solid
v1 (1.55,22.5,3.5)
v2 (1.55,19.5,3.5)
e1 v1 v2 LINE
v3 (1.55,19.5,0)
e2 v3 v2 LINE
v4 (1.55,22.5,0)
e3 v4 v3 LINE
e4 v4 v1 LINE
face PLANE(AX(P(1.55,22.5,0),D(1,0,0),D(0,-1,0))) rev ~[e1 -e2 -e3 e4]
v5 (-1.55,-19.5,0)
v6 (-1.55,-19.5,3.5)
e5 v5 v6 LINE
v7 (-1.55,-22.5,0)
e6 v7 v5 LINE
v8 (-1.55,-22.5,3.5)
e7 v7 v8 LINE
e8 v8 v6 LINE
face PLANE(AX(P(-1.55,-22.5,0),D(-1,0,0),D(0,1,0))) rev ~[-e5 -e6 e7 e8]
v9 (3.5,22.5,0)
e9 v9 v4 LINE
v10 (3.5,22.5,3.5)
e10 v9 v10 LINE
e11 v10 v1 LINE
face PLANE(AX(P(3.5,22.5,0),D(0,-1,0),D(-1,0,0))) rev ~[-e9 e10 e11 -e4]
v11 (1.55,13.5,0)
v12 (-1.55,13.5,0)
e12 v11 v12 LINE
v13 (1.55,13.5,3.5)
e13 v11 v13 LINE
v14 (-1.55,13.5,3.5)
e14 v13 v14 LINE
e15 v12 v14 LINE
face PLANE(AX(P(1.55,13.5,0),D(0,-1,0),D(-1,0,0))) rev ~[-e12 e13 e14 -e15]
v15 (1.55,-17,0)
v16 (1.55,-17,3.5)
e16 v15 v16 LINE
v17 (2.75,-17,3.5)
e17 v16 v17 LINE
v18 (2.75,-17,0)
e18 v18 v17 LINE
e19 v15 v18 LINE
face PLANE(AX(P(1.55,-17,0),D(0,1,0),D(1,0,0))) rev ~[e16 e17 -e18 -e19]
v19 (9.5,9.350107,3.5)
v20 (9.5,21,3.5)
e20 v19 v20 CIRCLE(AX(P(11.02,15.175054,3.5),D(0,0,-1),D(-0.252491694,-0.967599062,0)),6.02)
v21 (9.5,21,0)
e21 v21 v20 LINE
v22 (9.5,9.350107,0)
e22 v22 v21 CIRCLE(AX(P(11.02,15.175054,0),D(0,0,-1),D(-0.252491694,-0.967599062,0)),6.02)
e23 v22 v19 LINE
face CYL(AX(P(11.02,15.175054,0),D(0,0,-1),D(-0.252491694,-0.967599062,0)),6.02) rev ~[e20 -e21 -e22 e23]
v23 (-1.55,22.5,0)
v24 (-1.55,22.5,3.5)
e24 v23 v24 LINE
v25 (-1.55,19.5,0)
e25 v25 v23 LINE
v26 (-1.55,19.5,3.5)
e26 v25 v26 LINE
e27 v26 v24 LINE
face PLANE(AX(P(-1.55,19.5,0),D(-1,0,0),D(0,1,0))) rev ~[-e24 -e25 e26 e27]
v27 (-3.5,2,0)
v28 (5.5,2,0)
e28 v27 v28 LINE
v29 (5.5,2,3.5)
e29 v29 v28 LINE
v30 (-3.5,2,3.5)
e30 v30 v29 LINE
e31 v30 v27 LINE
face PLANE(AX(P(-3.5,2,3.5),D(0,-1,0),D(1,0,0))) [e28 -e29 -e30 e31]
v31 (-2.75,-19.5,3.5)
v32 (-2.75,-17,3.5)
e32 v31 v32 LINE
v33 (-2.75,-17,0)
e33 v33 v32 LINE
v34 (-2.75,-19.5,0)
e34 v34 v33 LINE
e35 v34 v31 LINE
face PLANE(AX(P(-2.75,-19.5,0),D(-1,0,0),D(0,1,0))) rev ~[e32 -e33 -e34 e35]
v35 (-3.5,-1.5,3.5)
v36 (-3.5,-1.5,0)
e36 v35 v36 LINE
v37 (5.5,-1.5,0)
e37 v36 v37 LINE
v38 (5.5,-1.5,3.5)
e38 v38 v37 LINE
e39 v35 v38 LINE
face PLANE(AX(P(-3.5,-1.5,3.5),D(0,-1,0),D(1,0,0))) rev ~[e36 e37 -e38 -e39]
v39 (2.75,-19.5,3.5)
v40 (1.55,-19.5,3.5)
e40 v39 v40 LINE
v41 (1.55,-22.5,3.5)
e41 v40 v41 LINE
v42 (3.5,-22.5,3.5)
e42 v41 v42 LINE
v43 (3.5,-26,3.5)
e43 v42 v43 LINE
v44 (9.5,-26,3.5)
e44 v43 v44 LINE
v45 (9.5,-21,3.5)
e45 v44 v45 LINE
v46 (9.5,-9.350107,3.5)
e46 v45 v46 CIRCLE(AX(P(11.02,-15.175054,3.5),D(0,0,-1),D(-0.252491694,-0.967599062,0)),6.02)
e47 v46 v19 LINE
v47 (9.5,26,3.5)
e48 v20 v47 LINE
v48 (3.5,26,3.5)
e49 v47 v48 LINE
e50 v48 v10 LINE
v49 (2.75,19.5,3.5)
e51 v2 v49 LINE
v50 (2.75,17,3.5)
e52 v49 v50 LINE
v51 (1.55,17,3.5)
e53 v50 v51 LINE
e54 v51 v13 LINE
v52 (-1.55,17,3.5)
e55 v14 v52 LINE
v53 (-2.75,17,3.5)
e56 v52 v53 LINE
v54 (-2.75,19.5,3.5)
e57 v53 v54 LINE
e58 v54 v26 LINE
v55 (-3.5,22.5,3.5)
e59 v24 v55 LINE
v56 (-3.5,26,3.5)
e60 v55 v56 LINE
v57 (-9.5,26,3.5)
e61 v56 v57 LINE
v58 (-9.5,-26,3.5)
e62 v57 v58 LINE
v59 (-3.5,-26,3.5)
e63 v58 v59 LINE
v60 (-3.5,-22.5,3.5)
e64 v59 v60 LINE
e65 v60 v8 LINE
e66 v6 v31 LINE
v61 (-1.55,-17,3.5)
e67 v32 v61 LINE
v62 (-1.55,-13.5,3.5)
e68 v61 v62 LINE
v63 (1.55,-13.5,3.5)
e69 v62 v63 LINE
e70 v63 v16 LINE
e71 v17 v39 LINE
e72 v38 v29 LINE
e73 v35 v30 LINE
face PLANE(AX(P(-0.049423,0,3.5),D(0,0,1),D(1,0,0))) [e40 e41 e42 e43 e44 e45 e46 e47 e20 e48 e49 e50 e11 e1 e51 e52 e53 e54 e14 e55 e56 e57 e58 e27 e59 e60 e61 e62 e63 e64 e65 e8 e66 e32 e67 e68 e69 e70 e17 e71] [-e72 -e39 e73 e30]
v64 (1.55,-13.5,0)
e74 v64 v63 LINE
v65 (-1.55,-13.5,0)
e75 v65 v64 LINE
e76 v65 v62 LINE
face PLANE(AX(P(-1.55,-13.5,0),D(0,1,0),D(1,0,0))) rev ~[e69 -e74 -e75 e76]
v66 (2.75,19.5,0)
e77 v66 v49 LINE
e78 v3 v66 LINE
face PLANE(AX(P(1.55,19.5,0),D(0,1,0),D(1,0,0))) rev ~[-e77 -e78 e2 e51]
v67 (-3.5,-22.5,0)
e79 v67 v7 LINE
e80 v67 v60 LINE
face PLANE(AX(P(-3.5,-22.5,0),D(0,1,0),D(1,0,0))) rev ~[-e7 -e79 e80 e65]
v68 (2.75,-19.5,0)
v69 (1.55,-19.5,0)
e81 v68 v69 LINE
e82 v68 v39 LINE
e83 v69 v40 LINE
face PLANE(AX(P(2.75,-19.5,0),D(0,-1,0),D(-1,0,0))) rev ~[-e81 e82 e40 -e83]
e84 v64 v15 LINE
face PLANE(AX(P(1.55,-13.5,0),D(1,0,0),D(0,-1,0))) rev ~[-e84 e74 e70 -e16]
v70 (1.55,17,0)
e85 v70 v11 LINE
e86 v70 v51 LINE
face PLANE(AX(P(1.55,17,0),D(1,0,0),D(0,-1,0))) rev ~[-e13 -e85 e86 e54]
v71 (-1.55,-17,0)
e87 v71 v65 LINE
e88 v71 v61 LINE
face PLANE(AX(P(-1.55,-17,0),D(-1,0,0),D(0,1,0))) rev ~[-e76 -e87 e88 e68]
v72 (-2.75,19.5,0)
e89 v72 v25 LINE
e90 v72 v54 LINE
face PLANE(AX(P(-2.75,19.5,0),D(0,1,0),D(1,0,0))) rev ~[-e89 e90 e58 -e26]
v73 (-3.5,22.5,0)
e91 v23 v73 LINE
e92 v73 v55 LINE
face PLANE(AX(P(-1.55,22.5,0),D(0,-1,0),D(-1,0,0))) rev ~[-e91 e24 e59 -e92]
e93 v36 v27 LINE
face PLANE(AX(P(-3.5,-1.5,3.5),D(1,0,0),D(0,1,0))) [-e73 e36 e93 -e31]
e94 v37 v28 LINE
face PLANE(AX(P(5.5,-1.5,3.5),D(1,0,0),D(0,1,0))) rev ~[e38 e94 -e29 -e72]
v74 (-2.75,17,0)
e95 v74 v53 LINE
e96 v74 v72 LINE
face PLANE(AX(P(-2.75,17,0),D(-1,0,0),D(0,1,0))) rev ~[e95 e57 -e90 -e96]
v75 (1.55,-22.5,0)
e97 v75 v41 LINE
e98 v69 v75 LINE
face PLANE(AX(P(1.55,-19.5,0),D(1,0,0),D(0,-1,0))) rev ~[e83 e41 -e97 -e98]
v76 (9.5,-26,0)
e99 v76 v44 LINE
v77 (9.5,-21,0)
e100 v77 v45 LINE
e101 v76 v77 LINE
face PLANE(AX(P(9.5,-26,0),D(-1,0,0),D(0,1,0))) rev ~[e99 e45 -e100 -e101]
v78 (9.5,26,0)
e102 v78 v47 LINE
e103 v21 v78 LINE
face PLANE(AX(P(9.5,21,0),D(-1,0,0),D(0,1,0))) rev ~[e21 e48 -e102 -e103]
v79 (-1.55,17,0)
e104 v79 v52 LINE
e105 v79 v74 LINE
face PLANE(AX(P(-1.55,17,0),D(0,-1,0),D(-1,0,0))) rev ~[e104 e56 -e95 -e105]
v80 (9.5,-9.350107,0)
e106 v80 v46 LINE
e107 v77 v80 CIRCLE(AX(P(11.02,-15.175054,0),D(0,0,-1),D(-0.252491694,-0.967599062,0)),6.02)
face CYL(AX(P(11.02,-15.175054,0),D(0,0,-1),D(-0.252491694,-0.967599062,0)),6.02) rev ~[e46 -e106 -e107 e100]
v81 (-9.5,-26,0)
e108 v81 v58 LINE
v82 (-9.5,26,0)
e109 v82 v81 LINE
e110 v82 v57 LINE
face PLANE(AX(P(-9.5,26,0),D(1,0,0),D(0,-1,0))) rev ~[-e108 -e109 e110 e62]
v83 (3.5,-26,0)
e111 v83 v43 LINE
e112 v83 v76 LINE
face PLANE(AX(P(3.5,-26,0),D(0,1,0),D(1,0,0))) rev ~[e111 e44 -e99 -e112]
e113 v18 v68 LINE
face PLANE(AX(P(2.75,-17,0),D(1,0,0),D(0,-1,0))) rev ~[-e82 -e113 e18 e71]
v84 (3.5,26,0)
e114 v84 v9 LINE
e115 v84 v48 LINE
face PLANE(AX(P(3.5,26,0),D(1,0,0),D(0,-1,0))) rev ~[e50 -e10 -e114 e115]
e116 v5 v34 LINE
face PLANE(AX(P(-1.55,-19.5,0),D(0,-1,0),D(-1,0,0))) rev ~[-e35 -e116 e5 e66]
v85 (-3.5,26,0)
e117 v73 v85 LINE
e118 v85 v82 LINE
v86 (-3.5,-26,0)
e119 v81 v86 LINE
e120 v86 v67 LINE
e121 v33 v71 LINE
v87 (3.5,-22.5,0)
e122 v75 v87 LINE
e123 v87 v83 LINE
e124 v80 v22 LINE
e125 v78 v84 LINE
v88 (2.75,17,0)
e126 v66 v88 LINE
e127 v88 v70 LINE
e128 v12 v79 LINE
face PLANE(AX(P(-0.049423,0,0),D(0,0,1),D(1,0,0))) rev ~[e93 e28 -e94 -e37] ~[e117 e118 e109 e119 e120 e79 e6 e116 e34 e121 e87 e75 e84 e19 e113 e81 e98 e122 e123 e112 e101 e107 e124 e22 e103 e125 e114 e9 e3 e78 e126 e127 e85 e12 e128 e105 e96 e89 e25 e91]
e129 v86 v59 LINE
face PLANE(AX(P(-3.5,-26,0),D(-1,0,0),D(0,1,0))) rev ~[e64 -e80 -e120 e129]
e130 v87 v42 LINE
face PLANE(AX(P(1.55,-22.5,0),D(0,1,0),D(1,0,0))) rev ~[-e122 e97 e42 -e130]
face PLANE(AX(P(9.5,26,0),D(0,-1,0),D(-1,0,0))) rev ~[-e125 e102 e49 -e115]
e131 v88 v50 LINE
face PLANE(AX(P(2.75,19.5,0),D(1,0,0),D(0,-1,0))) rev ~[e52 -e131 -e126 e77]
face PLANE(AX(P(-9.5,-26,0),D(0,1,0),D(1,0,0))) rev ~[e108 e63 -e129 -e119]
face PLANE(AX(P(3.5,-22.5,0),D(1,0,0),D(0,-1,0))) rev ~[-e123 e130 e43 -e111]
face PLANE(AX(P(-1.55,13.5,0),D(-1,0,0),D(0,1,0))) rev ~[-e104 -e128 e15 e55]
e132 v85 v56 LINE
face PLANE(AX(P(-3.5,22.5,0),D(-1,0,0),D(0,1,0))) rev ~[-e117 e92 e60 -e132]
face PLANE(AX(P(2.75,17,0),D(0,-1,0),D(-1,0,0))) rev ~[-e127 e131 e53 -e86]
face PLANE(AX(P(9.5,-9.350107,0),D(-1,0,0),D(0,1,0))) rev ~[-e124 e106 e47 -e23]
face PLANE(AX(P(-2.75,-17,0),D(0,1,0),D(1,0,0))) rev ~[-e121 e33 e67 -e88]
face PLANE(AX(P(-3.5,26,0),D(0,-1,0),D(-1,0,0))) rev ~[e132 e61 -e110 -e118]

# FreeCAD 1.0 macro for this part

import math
import FreeCAD as App
import Part
import Sketcher

V = App.Vector
Q = App.Units.Quantity


def add_polygon(sketch, points):
    """Adds a closed chain of lines whose ends are joined by coincident constraints."""
    first, n = sketch.GeometryCount, len(points)
    for a, b in zip(points, points[1:] + points[:1]):
        sketch.addGeometry(Part.LineSegment(App.Vector(*a, 0), App.Vector(*b, 0)), False)
    for i in range(n):
        sketch.addConstraint(Sketcher.Constraint("Coincident", first + i, 2, first + (i + 1) % n, 1))

doc = App.newDocument("Part")
body = doc.addObject("PartDesign::Body", "Body")

sketch1 = body.newObject("Sketcher::SketchObject", "Sketch")
sketch1.AttachmentSupport = (doc.getObject("XY_Plane"), [""])
sketch1.MapMode = "FlatFace"
sketch1.addGeometry(Part.LineSegment(V(3.5, 26, 0), V(3.5, 22.5, 0)), False)
sketch1.addGeometry(Part.LineSegment(V(3.5, 22.5, 0), V(1.6, 22.5, 0)), False)
sketch1.addGeometry(Part.LineSegment(V(1.6, 22.5, 0), V(1.6, 19.5, 0)), False)
sketch1.addGeometry(Part.LineSegment(V(1.6, 19.5, 0), V(2.8, 19.5, 0)), False)
sketch1.addGeometry(Part.LineSegment(V(2.8, 19.5, 0), V(2.8, 17, 0)), False)
sketch1.addGeometry(Part.LineSegment(V(2.8, 17, 0), V(1.6, 17, 0)), False)
sketch1.addGeometry(Part.LineSegment(V(1.6, 17, 0), V(1.6, 13.5, 0)), False)
sketch1.addGeometry(Part.LineSegment(V(1.6, 13.5, 0), V(-1.6, 13.5, 0)), False)
sketch1.addGeometry(Part.LineSegment(V(-1.6, 13.5, 0), V(-1.6, 17, 0)), False)
sketch1.addGeometry(Part.LineSegment(V(-1.6, 17, 0), V(-2.8, 17, 0)), False)
sketch1.addGeometry(Part.LineSegment(V(-2.8, 17, 0), V(-2.8, 19.5, 0)), False)
sketch1.addGeometry(Part.LineSegment(V(-2.8, 19.5, 0), V(-1.6, 19.5, 0)), False)
sketch1.addGeometry(Part.LineSegment(V(-1.6, 19.5, 0), V(-1.6, 22.5, 0)), False)
sketch1.addGeometry(Part.LineSegment(V(-1.6, 22.5, 0), V(-3.5, 22.5, 0)), False)
sketch1.addGeometry(Part.LineSegment(V(-3.5, 22.5, 0), V(-3.5, 26, 0)), False)
sketch1.addGeometry(Part.LineSegment(V(-3.5, 26, 0), V(-9.5, 26, 0)), False)
sketch1.addGeometry(Part.LineSegment(V(-9.5, 26, 0), V(-9.5, -26, 0)), False)
sketch1.addGeometry(Part.LineSegment(V(-9.5, -26, 0), V(-3.5, -26, 0)), False)
sketch1.addGeometry(Part.LineSegment(V(-3.5, -26, 0), V(-3.5, -22.5, 0)), False)
sketch1.addGeometry(Part.LineSegment(V(-3.5, -22.5, 0), V(-1.6, -22.5, 0)), False)
sketch1.addGeometry(Part.LineSegment(V(-1.6, -22.5, 0), V(-1.6, -19.5, 0)), False)
sketch1.addGeometry(Part.LineSegment(V(-1.6, -19.5, 0), V(-2.8, -19.5, 0)), False)
sketch1.addGeometry(Part.LineSegment(V(-2.8, -19.5, 0), V(-2.8, -17, 0)), False)
sketch1.addGeometry(Part.LineSegment(V(-2.8, -17, 0), V(-1.6, -17, 0)), False)
sketch1.addGeometry(Part.LineSegment(V(-1.6, -17, 0), V(-1.6, -13.5, 0)), False)
sketch1.addGeometry(Part.LineSegment(V(-1.6, -13.5, 0), V(1.6, -13.5, 0)), False)
sketch1.addGeometry(Part.LineSegment(V(1.6, -13.5, 0), V(1.6, -17, 0)), False)
sketch1.addGeometry(Part.LineSegment(V(1.6, -17, 0), V(2.8, -17, 0)), False)
sketch1.addGeometry(Part.LineSegment(V(2.8, -17, 0), V(2.8, -19.5, 0)), False)
sketch1.addGeometry(Part.LineSegment(V(2.8, -19.5, 0), V(1.6, -19.5, 0)), False)
sketch1.addGeometry(Part.LineSegment(V(1.6, -19.5, 0), V(1.6, -22.5, 0)), False)
sketch1.addGeometry(Part.LineSegment(V(1.6, -22.5, 0), V(3.5, -22.5, 0)), False)
sketch1.addGeometry(Part.LineSegment(V(3.5, -22.5, 0), V(3.5, -26, 0)), False)
sketch1.addGeometry(Part.LineSegment(V(3.5, -26, 0), V(9.5, -26, 0)), False)
sketch1.addGeometry(Part.LineSegment(V(9.5, -26, 0), V(9.5, -21, 0)), False)
sketch1.addGeometry(Part.ArcOfCircle(Part.Circle(V(11, -15.2, 0), V(0, 0, 1), 6), math.radians(105), math.radians(255)), False)
sketch1.addGeometry(Part.LineSegment(V(9.5, -9.4, 0), V(9.5, 9.4, 0)), False)
sketch1.addGeometry(Part.ArcOfCircle(Part.Circle(V(11, 15.2, 0), V(0, 0, 1), 6), math.radians(105), math.radians(255)), False)
sketch1.addGeometry(Part.LineSegment(V(9.5, 21, 0), V(9.5, 26, 0)), False)
sketch1.addGeometry(Part.LineSegment(V(9.5, 26, 0), V(3.5, 26, 0)), False)
sketch1.addConstraint(Sketcher.Constraint("Coincident", 0, 2, 1, 1))
sketch1.addConstraint(Sketcher.Constraint("Coincident", 1, 2, 2, 1))
sketch1.addConstraint(Sketcher.Constraint("Coincident", 2, 2, 3, 1))
sketch1.addConstraint(Sketcher.Constraint("Coincident", 3, 2, 4, 1))
sketch1.addConstraint(Sketcher.Constraint("Coincident", 4, 2, 5, 1))
sketch1.addConstraint(Sketcher.Constraint("Coincident", 5, 2, 6, 1))
sketch1.addConstraint(Sketcher.Constraint("Coincident", 6, 2, 7, 1))
sketch1.addConstraint(Sketcher.Constraint("Coincident", 7, 2, 8, 1))
sketch1.addConstraint(Sketcher.Constraint("Coincident", 8, 2, 9, 1))
sketch1.addConstraint(Sketcher.Constraint("Coincident", 9, 2, 10, 1))
sketch1.addConstraint(Sketcher.Constraint("Coincident", 10, 2, 11, 1))
sketch1.addConstraint(Sketcher.Constraint("Coincident", 11, 2, 12, 1))
sketch1.addConstraint(Sketcher.Constraint("Coincident", 12, 2, 13, 1))
sketch1.addConstraint(Sketcher.Constraint("Coincident", 13, 2, 14, 1))
sketch1.addConstraint(Sketcher.Constraint("Coincident", 14, 2, 15, 1))
sketch1.addConstraint(Sketcher.Constraint("Coincident", 15, 2, 16, 1))
sketch1.addConstraint(Sketcher.Constraint("Coincident", 16, 2, 17, 1))
sketch1.addConstraint(Sketcher.Constraint("Coincident", 17, 2, 18, 1))
sketch1.addConstraint(Sketcher.Constraint("Coincident", 18, 2, 19, 1))
sketch1.addConstraint(Sketcher.Constraint("Coincident", 19, 2, 20, 1))
sketch1.addConstraint(Sketcher.Constraint("Coincident", 20, 2, 21, 1))
sketch1.addConstraint(Sketcher.Constraint("Coincident", 21, 2, 22, 1))
sketch1.addConstraint(Sketcher.Constraint("Coincident", 22, 2, 23, 1))
sketch1.addConstraint(Sketcher.Constraint("Coincident", 23, 2, 24, 1))
sketch1.addConstraint(Sketcher.Constraint("Coincident", 24, 2, 25, 1))
sketch1.addConstraint(Sketcher.Constraint("Coincident", 25, 2, 26, 1))
sketch1.addConstraint(Sketcher.Constraint("Coincident", 26, 2, 27, 1))
sketch1.addConstraint(Sketcher.Constraint("Coincident", 27, 2, 28, 1))
sketch1.addConstraint(Sketcher.Constraint("Coincident", 28, 2, 29, 1))
sketch1.addConstraint(Sketcher.Constraint("Coincident", 29, 2, 30, 1))
sketch1.addConstraint(Sketcher.Constraint("Coincident", 30, 2, 31, 1))
sketch1.addConstraint(Sketcher.Constraint("Coincident", 31, 2, 32, 1))
sketch1.addConstraint(Sketcher.Constraint("Coincident", 32, 2, 33, 1))
sketch1.addConstraint(Sketcher.Constraint("Coincident", 33, 2, 34, 1))
sketch1.addConstraint(Sketcher.Constraint("Coincident", 34, 2, 35, 2))
sketch1.addConstraint(Sketcher.Constraint("Coincident", 35, 1, 36, 1))
sketch1.addConstraint(Sketcher.Constraint("Coincident", 36, 2, 37, 2))
sketch1.addConstraint(Sketcher.Constraint("Coincident", 37, 1, 38, 1))
sketch1.addConstraint(Sketcher.Constraint("Coincident", 38, 2, 39, 1))
sketch1.addConstraint(Sketcher.Constraint("Coincident", 39, 2, 0, 1))
sketch1.addConstraint(Sketcher.Constraint("Vertical", 0))
sketch1.addConstraint(Sketcher.Constraint("Horizontal", 1))
sketch1.addConstraint(Sketcher.Constraint("Vertical", 2))
sketch1.addConstraint(Sketcher.Constraint("Horizontal", 3))
sketch1.addConstraint(Sketcher.Constraint("Vertical", 4))
sketch1.addConstraint(Sketcher.Constraint("Horizontal", 5))
sketch1.addConstraint(Sketcher.Constraint("Vertical", 6))
sketch1.addConstraint(Sketcher.Constraint("Horizontal", 7))
sketch1.addConstraint(Sketcher.Constraint("Vertical", 8))
sketch1.addConstraint(Sketcher.Constraint("Horizontal", 9))
sketch1.addConstraint(Sketcher.Constraint("Vertical", 10))
sketch1.addConstraint(Sketcher.Constraint("Horizontal", 11))
sketch1.addConstraint(Sketcher.Constraint("Vertical", 12))
sketch1.addConstraint(Sketcher.Constraint("Horizontal", 13))
sketch1.addConstraint(Sketcher.Constraint("Vertical", 14))
sketch1.addConstraint(Sketcher.Constraint("Horizontal", 15))
sketch1.addConstraint(Sketcher.Constraint("Vertical", 16))
sketch1.addConstraint(Sketcher.Constraint("Horizontal", 17))
sketch1.addConstraint(Sketcher.Constraint("Vertical", 18))
sketch1.addConstraint(Sketcher.Constraint("Horizontal", 19))
sketch1.addConstraint(Sketcher.Constraint("Vertical", 20))
sketch1.addConstraint(Sketcher.Constraint("Horizontal", 21))
sketch1.addConstraint(Sketcher.Constraint("Vertical", 22))
sketch1.addConstraint(Sketcher.Constraint("Horizontal", 23))
sketch1.addConstraint(Sketcher.Constraint("Vertical", 24))
sketch1.addConstraint(Sketcher.Constraint("Horizontal", 25))
sketch1.addConstraint(Sketcher.Constraint("Vertical", 26))
sketch1.addConstraint(Sketcher.Constraint("Horizontal", 27))
sketch1.addConstraint(Sketcher.Constraint("Vertical", 28))
sketch1.addConstraint(Sketcher.Constraint("Horizontal", 29))
sketch1.addConstraint(Sketcher.Constraint("Vertical", 30))
sketch1.addConstraint(Sketcher.Constraint("Horizontal", 31))
sketch1.addConstraint(Sketcher.Constraint("Vertical", 32))
sketch1.addConstraint(Sketcher.Constraint("Horizontal", 33))
sketch1.addConstraint(Sketcher.Constraint("Vertical", 34))
sketch1.addConstraint(Sketcher.Constraint("Vertical", 36))
sketch1.addConstraint(Sketcher.Constraint("Vertical", 38))
sketch1.addConstraint(Sketcher.Constraint("Horizontal", 39))
sketch1.addConstraint(Sketcher.Constraint("Equal", 35, 37))
sketch1.addConstraint(Sketcher.Constraint("Symmetric", 0, 2, 18, 2, -1, 1))
sketch1.addConstraint(Sketcher.Constraint("Symmetric", 2, 2, 20, 2, -1, 1))
sketch1.addConstraint(Sketcher.Constraint("Symmetric", 4, 2, 22, 2, -1, 1))
sketch1.addConstraint(Sketcher.Constraint("Symmetric", 6, 2, 24, 2, -1, 1))
sketch1.addConstraint(Sketcher.Constraint("Symmetric", 8, 2, 26, 2, -1, 1))
sketch1.addConstraint(Sketcher.Constraint("Symmetric", 10, 2, 28, 2, -1, 1))
sketch1.addConstraint(Sketcher.Constraint("Symmetric", 12, 2, 30, 2, -1, 1))
sketch1.addConstraint(Sketcher.Constraint("Symmetric", 14, 2, 32, 2, -1, 1))
sketch1.addConstraint(Sketcher.Constraint("Symmetric", 16, 2, 38, 2, -1, 1))
sketch1.addConstraint(Sketcher.Constraint("Symmetric", 5, 2, 8, 2, -2))
sketch1.addConstraint(Sketcher.Constraint("Symmetric", 3, 2, 10, 2, -2))
sketch1.addConstraint(Sketcher.Constraint("Symmetric", 1, 2, 12, 2, -2))
sketch1.addConstraint(Sketcher.Constraint("Symmetric", 17, 2, 32, 2, -2))
sketch1.addConstraint(Sketcher.Constraint("Symmetric", 35, 3, 37, 3, -1))
sketch1.addConstraint(Sketcher.Constraint("Vertical", 2, 2, 5, 2))
sketch1.addConstraint(Sketcher.Constraint("Vertical", 34, 2, 35, 1))
sketch1.addConstraint(Sketcher.Constraint("Vertical", 36, 2, 37, 1))
sketch1.addConstraint(Sketcher.Constraint("Equal", 0, 6))
sketch1.addConstraint(Sketcher.Constraint("DistanceX", 15, 2, 15, 1, Q("6 mm")))
sketch1.addConstraint(Sketcher.Constraint("DistanceY", 2, 2, 2, 1, Q("3 mm")))
sketch1.addConstraint(Sketcher.Constraint("DistanceY", 16, 2, 16, 1, Q("52 mm")))
sketch1.addConstraint(Sketcher.Constraint("DistanceY", 34, 1, 34, 2, Q("5 mm")))
sketch1.addConstraint(Sketcher.Constraint("Radius", 35, Q("6.02 mm")))
sketch1.addConstraint(Sketcher.Constraint("DistanceX", 3, 1, 3, 2, Q("1.2 mm")))
sketch1.addConstraint(Sketcher.Constraint("DistanceX", 7, 2, 7, 1, Q("3.1 mm")))
sketch1.addConstraint(Sketcher.Constraint("DistanceY", 0, 2, 0, 1, Q("3.5 mm")))
sketch1.addConstraint(Sketcher.Constraint("DistanceY", 4, 2, 4, 1, Q("2.5 mm")))
sketch1.addConstraint(Sketcher.Constraint("DistanceX", 1, 2, 1, 1, Q("1.95 mm")))
sketch1.addConstraint(Sketcher.Constraint("DistanceX", -1, 1, 35, 3, Q("11.02 mm")))
pad1 = body.newObject("PartDesign::Pad", "Pad")
pad1.Profile = sketch1
pad1.Length = 3.5

sketch2 = body.newObject("Sketcher::SketchObject", "Sketch001")
sketch2.AttachmentSupport = (doc.getObject("XY_Plane"), [""])
sketch2.MapMode = "FlatFace"
sketch2.AttachmentOffset = App.Placement(V(0, 0, 3.5), App.Rotation())
add_polygon(sketch2, [(-3.5, 2), (-3.5, -1.5), (5.5, -1.5), (5.5, 2)])
sketch2.addConstraint(Sketcher.Constraint("Vertical", 0))
sketch2.addConstraint(Sketcher.Constraint("Horizontal", 1))
sketch2.addConstraint(Sketcher.Constraint("Vertical", 2))
sketch2.addConstraint(Sketcher.Constraint("Horizontal", 3))
sketch2.addConstraint(Sketcher.Constraint("DistanceX", 1, 1, 1, 2, Q("9 mm")))
sketch2.addConstraint(Sketcher.Constraint("DistanceY", 0, 2, 0, 1, Q("3.5 mm")))
sketch2.addConstraint(Sketcher.Constraint("DistanceY", -1, 1, 2, 2, Q("2 mm")))
sketch2.addConstraint(Sketcher.Constraint("DistanceX", 0, 2, -1, 1, Q("3.5 mm")))
pocket1 = body.newObject("PartDesign::Pocket", "Pocket")
pocket1.Profile = sketch2
pocket1.Type = "ThroughAll"

doc.recompute()
